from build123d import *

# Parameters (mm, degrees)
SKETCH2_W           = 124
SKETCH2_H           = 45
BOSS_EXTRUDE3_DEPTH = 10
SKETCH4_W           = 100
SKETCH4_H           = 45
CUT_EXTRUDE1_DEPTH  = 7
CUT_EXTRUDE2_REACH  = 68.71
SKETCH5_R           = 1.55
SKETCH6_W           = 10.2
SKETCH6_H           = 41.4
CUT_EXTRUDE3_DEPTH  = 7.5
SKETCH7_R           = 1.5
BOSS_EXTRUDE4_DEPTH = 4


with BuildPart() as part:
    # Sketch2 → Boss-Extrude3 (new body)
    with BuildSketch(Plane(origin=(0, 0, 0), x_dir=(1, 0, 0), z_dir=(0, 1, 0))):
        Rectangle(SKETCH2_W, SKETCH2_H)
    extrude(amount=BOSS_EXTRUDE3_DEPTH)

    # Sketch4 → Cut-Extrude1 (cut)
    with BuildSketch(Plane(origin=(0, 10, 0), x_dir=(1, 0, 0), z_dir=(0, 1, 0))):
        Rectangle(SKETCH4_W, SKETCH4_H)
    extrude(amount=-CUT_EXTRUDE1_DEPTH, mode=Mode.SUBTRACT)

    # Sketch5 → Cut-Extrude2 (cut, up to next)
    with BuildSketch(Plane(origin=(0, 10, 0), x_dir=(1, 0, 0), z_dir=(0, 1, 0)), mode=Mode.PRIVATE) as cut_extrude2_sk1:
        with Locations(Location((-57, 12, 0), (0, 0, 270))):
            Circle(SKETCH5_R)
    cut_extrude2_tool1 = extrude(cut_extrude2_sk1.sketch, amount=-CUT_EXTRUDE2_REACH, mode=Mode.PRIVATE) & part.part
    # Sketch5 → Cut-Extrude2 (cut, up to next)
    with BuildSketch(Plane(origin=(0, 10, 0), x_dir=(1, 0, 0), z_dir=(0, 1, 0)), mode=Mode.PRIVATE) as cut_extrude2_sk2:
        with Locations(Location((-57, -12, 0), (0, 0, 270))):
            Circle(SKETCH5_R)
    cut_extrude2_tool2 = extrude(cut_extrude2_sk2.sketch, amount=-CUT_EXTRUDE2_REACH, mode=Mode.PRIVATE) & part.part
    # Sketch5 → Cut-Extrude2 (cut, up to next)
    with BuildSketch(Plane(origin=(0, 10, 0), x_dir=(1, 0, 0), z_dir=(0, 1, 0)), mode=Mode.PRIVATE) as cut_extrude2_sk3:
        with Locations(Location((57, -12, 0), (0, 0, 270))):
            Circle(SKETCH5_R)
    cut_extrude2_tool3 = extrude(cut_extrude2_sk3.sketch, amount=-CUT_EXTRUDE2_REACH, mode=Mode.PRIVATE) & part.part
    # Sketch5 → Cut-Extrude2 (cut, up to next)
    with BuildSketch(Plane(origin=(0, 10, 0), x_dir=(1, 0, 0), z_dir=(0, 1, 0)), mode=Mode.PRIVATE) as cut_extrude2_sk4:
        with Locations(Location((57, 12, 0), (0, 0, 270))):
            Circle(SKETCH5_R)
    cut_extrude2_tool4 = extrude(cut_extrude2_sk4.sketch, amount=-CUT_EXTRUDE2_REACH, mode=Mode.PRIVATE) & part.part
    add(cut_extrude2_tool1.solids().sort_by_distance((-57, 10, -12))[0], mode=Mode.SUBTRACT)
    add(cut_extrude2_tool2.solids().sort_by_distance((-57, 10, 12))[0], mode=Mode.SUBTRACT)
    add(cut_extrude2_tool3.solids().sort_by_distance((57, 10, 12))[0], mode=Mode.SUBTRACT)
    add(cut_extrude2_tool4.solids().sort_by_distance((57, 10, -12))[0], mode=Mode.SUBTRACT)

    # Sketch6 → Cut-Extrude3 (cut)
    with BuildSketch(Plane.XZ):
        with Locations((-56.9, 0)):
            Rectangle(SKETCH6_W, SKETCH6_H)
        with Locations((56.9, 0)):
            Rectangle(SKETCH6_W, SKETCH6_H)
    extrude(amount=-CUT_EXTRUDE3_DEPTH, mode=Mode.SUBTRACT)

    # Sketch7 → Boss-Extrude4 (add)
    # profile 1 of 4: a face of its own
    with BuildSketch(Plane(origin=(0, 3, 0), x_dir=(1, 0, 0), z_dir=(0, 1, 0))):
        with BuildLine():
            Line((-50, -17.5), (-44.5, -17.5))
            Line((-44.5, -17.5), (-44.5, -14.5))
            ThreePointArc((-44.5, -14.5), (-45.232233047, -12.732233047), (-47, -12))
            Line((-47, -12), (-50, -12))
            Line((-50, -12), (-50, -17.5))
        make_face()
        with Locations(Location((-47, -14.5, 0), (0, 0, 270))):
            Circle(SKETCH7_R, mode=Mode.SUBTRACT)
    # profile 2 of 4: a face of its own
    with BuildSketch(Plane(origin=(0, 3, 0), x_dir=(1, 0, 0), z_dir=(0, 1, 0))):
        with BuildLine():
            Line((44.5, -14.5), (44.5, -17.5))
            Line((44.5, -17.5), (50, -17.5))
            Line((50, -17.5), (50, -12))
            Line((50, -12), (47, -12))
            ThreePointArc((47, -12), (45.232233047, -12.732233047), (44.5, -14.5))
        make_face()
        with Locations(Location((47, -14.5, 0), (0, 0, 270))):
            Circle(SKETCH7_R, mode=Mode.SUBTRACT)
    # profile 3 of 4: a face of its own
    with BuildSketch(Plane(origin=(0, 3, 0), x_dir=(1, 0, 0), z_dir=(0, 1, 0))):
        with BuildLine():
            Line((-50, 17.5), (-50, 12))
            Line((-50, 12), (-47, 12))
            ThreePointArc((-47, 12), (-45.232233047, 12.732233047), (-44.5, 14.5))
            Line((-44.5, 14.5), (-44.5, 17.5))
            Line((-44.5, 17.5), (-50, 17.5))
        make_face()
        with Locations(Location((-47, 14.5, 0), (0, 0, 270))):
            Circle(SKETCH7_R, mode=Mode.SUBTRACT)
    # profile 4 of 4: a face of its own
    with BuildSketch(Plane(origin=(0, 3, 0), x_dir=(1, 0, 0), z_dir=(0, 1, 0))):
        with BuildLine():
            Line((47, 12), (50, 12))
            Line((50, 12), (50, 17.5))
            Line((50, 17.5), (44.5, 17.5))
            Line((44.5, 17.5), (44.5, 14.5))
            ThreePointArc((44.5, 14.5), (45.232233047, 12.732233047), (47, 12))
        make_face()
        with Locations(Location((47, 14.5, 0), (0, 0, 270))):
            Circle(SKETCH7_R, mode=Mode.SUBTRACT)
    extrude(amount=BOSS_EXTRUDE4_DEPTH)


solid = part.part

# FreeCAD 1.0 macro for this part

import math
import FreeCAD as App
import Part
import Sketcher
Q = App.Units.Quantity


def add_polygon(sketch, points):
    """Adds a closed chain of lines whose ends are joined by coincident constraints."""
    first, n = sketch.GeometryCount, len(points)
    for a, b in zip(points, points[1:] + points[:1]):
        sketch.addGeometry(Part.LineSegment(App.Vector(*a, 0), App.Vector(*b, 0)), False)
    for i in range(n):
        sketch.addConstraint(Sketcher.Constraint("Coincident", first + i, 2, first + (i + 1) % n, 1))

doc = App.newDocument("Part")
params = doc.addObject("Spreadsheet::Sheet", "Params")
for row, (alias, value) in enumerate([
    ("sketch1_width", "124 mm"),
    ("sketch1_height", "45 mm"),
    ("pad1_length", "10 mm"),
    ("sketch2_width", "100 mm"),
    ("sketch2_height", "45 mm"),
    ("pocket1_length", "7 mm"),
    ("sketch3_diameter", "3.1 mm"),
    ("sketch4_diameter", "3.1 mm"),
    ("sketch5_diameter", "3.1 mm"),
    ("sketch6_diameter", "3.1 mm"),
    ("sketch7_width", "10.2 mm"),
    ("sketch7_height", "41.4 mm"),
    ("pocket6_length", "7.5 mm"),
    ("sketch8_diameter", "3 mm"),
    ("sketch8_radius", "2.5 mm"),
    ("sketch8_width", "3 mm"),
    ("pad2_length", "4 mm"),
], start=1):
    params.set(f"A{row}", alias)
    params.set(f"B{row}", "=" + value)
    params.setAlias(f"B{row}", alias)

body = doc.addObject("PartDesign::Body", "Body")

# Sketch on XZ plane
sketch1 = doc.addObject("Sketcher::SketchObject", "Sketch")
body.addObject(sketch1)
sketch1.AttachmentSupport = (doc.XZ_Plane, [""])
sketch1.MapMode = "FlatFace"
add_polygon(sketch1, [(-62, -22.5), (-62, 22.5), (62, 22.5), (62, -22.5)])  # lines 0-3
sketch1.addConstraint(Sketcher.Constraint("Vertical", 0))
sketch1.addConstraint(Sketcher.Constraint("Horizontal", 1))
sketch1.addConstraint(Sketcher.Constraint("Vertical", 2))
sketch1.addConstraint(Sketcher.Constraint("Horizontal", 3))
sketch1.addConstraint(Sketcher.Constraint("Symmetric", 0, 2, 2, 2, -1, 1))
sketch1.addConstraint(Sketcher.Constraint("DistanceX", 1, 1, 1, 2, Q("124 mm")))
sketch1.addConstraint(Sketcher.Constraint("DistanceY", 0, 1, 0, 2, Q("45 mm")))
sketch1.setExpression("Constraints[9]", "Params.sketch1_width")
sketch1.setExpression("Constraints[10]", "Params.sketch1_height")
pad1 = doc.addObject("PartDesign::Pad", "Pad")
body.addObject(pad1)
pad1.Profile = sketch1
pad1.setExpression("Length", "Params.pad1_length")
pad1.Reversed = True

# Sketch on XZ plane
sketch2 = doc.addObject("Sketcher::SketchObject", "Sketch001")
body.addObject(sketch2)
sketch2.AttachmentSupport = (doc.XZ_Plane, [""])
sketch2.MapMode = "FlatFace"
sketch2.AttachmentOffset = App.Placement(App.Vector(0, 0, -10), App.Rotation())
add_polygon(sketch2, [(-50, -22.5), (-50, 22.5), (50, 22.5), (50, -22.5)])  # lines 0-3
sketch2.addConstraint(Sketcher.Constraint("Vertical", 0))
sketch2.addConstraint(Sketcher.Constraint("Horizontal", 1))
sketch2.addConstraint(Sketcher.Constraint("Vertical", 2))
sketch2.addConstraint(Sketcher.Constraint("Horizontal", 3))
sketch2.addConstraint(Sketcher.Constraint("Symmetric", 0, 2, 2, 2, -1, 1))
sketch2.addConstraint(Sketcher.Constraint("DistanceX", 1, 1, 1, 2, Q("100 mm")))
sketch2.addConstraint(Sketcher.Constraint("DistanceY", 0, 1, 0, 2, Q("45 mm")))
sketch2.setExpression("Constraints[9]", "Params.sketch2_width")
sketch2.setExpression("Constraints[10]", "Params.sketch2_height")
pocket1 = doc.addObject("PartDesign::Pocket", "Pocket")
body.addObject(pocket1)
pocket1.Profile = sketch2
pocket1.setExpression("Length", "Params.pocket1_length")
pocket1.Reversed = True

# Sketch on XZ plane
sketch3 = doc.addObject("Sketcher::SketchObject", "Sketch002")
body.addObject(sketch3)
sketch3.AttachmentSupport = (doc.XZ_Plane, [""])
sketch3.MapMode = "FlatFace"
sketch3.AttachmentOffset = App.Placement(App.Vector(0, 0, -10), App.Rotation())
sketch3.addGeometry(Part.Circle(App.Vector(-57, -12, 0), App.Vector(0, 0, 1), 1.55), False)
sketch3.addConstraint(Sketcher.Constraint("Diameter", 0, Q("3.1 mm")))
sketch3.addConstraint(Sketcher.Constraint("DistanceX", 0, 3, -1, 1, Q("57 mm")))
sketch3.addConstraint(Sketcher.Constraint("DistanceY", 0, 3, -1, 1, Q("12 mm")))
sketch3.setExpression("Constraints[0]", "Params.sketch3_diameter")
pocket2 = doc.addObject("PartDesign::Pocket", "Pocket001")
body.addObject(pocket2)
pocket2.Profile = sketch3
pocket2.Type = "UpToFirst"
pocket2.Reversed = True

# Sketch on XZ plane
sketch4 = doc.addObject("Sketcher::SketchObject", "Sketch003")
body.addObject(sketch4)
sketch4.AttachmentSupport = (doc.XZ_Plane, [""])
sketch4.MapMode = "FlatFace"
sketch4.AttachmentOffset = App.Placement(App.Vector(0, 0, -10), App.Rotation())
sketch4.addGeometry(Part.Circle(App.Vector(-57, 12, 0), App.Vector(0, 0, 1), 1.55), False)
sketch4.addConstraint(Sketcher.Constraint("Diameter", 0, Q("3.1 mm")))
sketch4.addConstraint(Sketcher.Constraint("DistanceX", 0, 3, -1, 1, Q("57 mm")))
sketch4.addConstraint(Sketcher.Constraint("DistanceY", -1, 1, 0, 3, Q("12 mm")))
sketch4.setExpression("Constraints[0]", "Params.sketch4_diameter")
pocket3 = doc.addObject("PartDesign::Pocket", "Pocket002")
body.addObject(pocket3)
pocket3.Profile = sketch4
pocket3.Type = "UpToFirst"
pocket3.Reversed = True

# Sketch on XZ plane
sketch5 = doc.addObject("Sketcher::SketchObject", "Sketch004")
body.addObject(sketch5)
sketch5.AttachmentSupport = (doc.XZ_Plane, [""])
sketch5.MapMode = "FlatFace"
sketch5.AttachmentOffset = App.Placement(App.Vector(0, 0, -10), App.Rotation())
sketch5.addGeometry(Part.Circle(App.Vector(57, 12, 0), App.Vector(0, 0, 1), 1.55), False)
sketch5.addConstraint(Sketcher.Constraint("Diameter", 0, Q("3.1 mm")))
sketch5.addConstraint(Sketcher.Constraint("DistanceX", -1, 1, 0, 3, Q("57 mm")))
sketch5.addConstraint(Sketcher.Constraint("DistanceY", -1, 1, 0, 3, Q("12 mm")))
sketch5.setExpression("Constraints[0]", "Params.sketch5_diameter")
pocket4 = doc.addObject("PartDesign::Pocket", "Pocket003")
body.addObject(pocket4)
pocket4.Profile = sketch5
pocket4.Type = "UpToFirst"
pocket4.Reversed = True

# Sketch on XZ plane
sketch6 = doc.addObject("Sketcher::SketchObject", "Sketch005")
body.addObject(sketch6)
sketch6.AttachmentSupport = (doc.XZ_Plane, [""])
sketch6.MapMode = "FlatFace"
sketch6.AttachmentOffset = App.Placement(App.Vector(0, 0, -10), App.Rotation())
sketch6.addGeometry(Part.Circle(App.Vector(57, -12, 0), App.Vector(0, 0, 1), 1.55), False)
sketch6.addConstraint(Sketcher.Constraint("Diameter", 0, Q("3.1 mm")))
sketch6.addConstraint(Sketcher.Constraint("DistanceX", -1, 1, 0, 3, Q("57 mm")))
sketch6.addConstraint(Sketcher.Constraint("DistanceY", 0, 3, -1, 1, Q("12 mm")))
sketch6.setExpression("Constraints[0]", "Params.sketch6_diameter")
pocket5 = doc.addObject("PartDesign::Pocket", "Pocket004")
body.addObject(pocket5)
pocket5.Profile = sketch6
pocket5.Type = "UpToFirst"
pocket5.Reversed = True

# Sketch on XZ plane
sketch7 = doc.addObject("Sketcher::SketchObject", "Sketch006")
body.addObject(sketch7)
sketch7.AttachmentSupport = (doc.XZ_Plane, [""])
sketch7.MapMode = "FlatFace"
add_polygon(sketch7, [(-62, 20.7), (-62, -20.7), (-51.8, -20.7), (-51.8, 20.7)])  # lines 0-3
add_polygon(sketch7, [(51.8, 20.7), (51.8, -20.7), (62, -20.7), (62, 20.7)])  # lines 4-7
sketch7.addConstraint(Sketcher.Constraint("Vertical", 0))
sketch7.addConstraint(Sketcher.Constraint("Horizontal", 1))
sketch7.addConstraint(Sketcher.Constraint("Vertical", 2))
sketch7.addConstraint(Sketcher.Constraint("Horizontal", 3))
sketch7.addConstraint(Sketcher.Constraint("Vertical", 4))
sketch7.addConstraint(Sketcher.Constraint("Horizontal", 5))
sketch7.addConstraint(Sketcher.Constraint("Vertical", 6))
sketch7.addConstraint(Sketcher.Constraint("Horizontal", 7))
sketch7.addConstraint(Sketcher.Constraint("Symmetric", 2, 2, 4, 2, -1, 1))
sketch7.addConstraint(Sketcher.Constraint("Symmetric", 0, 2, 6, 2, -1, 1))
sketch7.addConstraint(Sketcher.Constraint("Horizontal", 1, 2, 4, 2))
sketch7.addConstraint(Sketcher.Constraint("DistanceX", 1, 1, 1, 2, Q("10.2 mm")))
sketch7.addConstraint(Sketcher.Constraint("DistanceY", 0, 2, 0, 1, Q("41.4 mm")))
sketch7.addConstraint(Sketcher.Constraint("DistanceX", 0, 2, -1, 1, Q("62 mm")))
sketch7.setExpression("Constraints[19]", "Params.sketch7_width")
sketch7.setExpression("Constraints[20]", "Params.sketch7_height")
pocket6 = doc.addObject("PartDesign::Pocket", "Pocket005")
body.addObject(pocket6)
pocket6.Profile = sketch7
pocket6.setExpression("Length", "Params.pocket6_length")

# Sketch on XZ plane
sketch8 = doc.addObject("Sketcher::SketchObject", "Sketch007")
body.addObject(sketch8)
sketch8.AttachmentSupport = (doc.XZ_Plane, [""])
sketch8.MapMode = "FlatFace"
sketch8.AttachmentOffset = App.Placement(App.Vector(0, 0, -3), App.Rotation())
sketch8.addGeometry(Part.LineSegment(App.Vector(-50, 17.5, 0), App.Vector(-44.5, 17.5, 0)), False)
sketch8.addGeometry(Part.LineSegment(App.Vector(-44.5, 17.5, 0), App.Vector(-44.5, 14.5, 0)), False)
sketch8.addGeometry(Part.ArcOfCircle(Part.Circle(App.Vector(-47, 14.5, 0), App.Vector(0, 0, 1), 2.5), math.radians(-90), math.radians(0)), False)
sketch8.addGeometry(Part.LineSegment(App.Vector(-47, 12, 0), App.Vector(-50, 12, 0)), False)
sketch8.addGeometry(Part.LineSegment(App.Vector(-50, 12, 0), App.Vector(-50, 17.5, 0)), False)
sketch8.addGeometry(Part.Circle(App.Vector(-47, 14.5, 0), App.Vector(0, 0, 1), 1.5), False)
sketch8.addGeometry(Part.LineSegment(App.Vector(44.5, 14.5, 0), App.Vector(44.5, 17.5, 0)), False)
sketch8.addGeometry(Part.LineSegment(App.Vector(44.5, 17.5, 0), App.Vector(50, 17.5, 0)), False)
sketch8.addGeometry(Part.LineSegment(App.Vector(50, 17.5, 0), App.Vector(50, 12, 0)), False)
sketch8.addGeometry(Part.LineSegment(App.Vector(50, 12, 0), App.Vector(47, 12, 0)), False)
sketch8.addGeometry(Part.ArcOfCircle(Part.Circle(App.Vector(47, 14.5, 0), App.Vector(0, 0, 1), 2.5), math.radians(180), math.radians(270)), False)
sketch8.addGeometry(Part.Circle(App.Vector(47, 14.5, 0), App.Vector(0, 0, 1), 1.5), False)
sketch8.addGeometry(Part.LineSegment(App.Vector(-50, -17.5, 0), App.Vector(-50, -12, 0)), False)
sketch8.addGeometry(Part.LineSegment(App.Vector(-50, -12, 0), App.Vector(-47, -12, 0)), False)
sketch8.addGeometry(Part.ArcOfCircle(Part.Circle(App.Vector(-47, -14.5, 0), App.Vector(0, 0, 1), 2.5), math.radians(0), math.radians(90)), False)
sketch8.addGeometry(Part.LineSegment(App.Vector(-44.5, -14.5, 0), App.Vector(-44.5, -17.5, 0)), False)
sketch8.addGeometry(Part.LineSegment(App.Vector(-44.5, -17.5, 0), App.Vector(-50, -17.5, 0)), False)
sketch8.addGeometry(Part.Circle(App.Vector(-47, -14.5, 0), App.Vector(0, 0, 1), 1.5), False)
sketch8.addGeometry(Part.LineSegment(App.Vector(47, -12, 0), App.Vector(50, -12, 0)), False)
sketch8.addGeometry(Part.LineSegment(App.Vector(50, -12, 0), App.Vector(50, -17.5, 0)), False)
sketch8.addGeometry(Part.LineSegment(App.Vector(50, -17.5, 0), App.Vector(44.5, -17.5, 0)), False)
sketch8.addGeometry(Part.LineSegment(App.Vector(44.5, -17.5, 0), App.Vector(44.5, -14.5, 0)), False)
sketch8.addGeometry(Part.ArcOfCircle(Part.Circle(App.Vector(47, -14.5, 0), App.Vector(0, 0, 1), 2.5), math.radians(90), math.radians(180)), False)
sketch8.addGeometry(Part.Circle(App.Vector(47, -14.5, 0), App.Vector(0, 0, 1), 1.5), False)
sketch8.addConstraint(Sketcher.Constraint("Coincident", 0, 2, 1, 1))
sketch8.addConstraint(Sketcher.Constraint("Tangent", 1, 2, 2, 2))
sketch8.addConstraint(Sketcher.Constraint("Tangent", 2, 1, 3, 1))
sketch8.addConstraint(Sketcher.Constraint("Coincident", 3, 2, 4, 1))
sketch8.addConstraint(Sketcher.Constraint("Coincident", 4, 2, 0, 1))
sketch8.addConstraint(Sketcher.Constraint("Coincident", 6, 2, 7, 1))
sketch8.addConstraint(Sketcher.Constraint("Coincident", 7, 2, 8, 1))
sketch8.addConstraint(Sketcher.Constraint("Coincident", 8, 2, 9, 1))
sketch8.addConstraint(Sketcher.Constraint("Tangent", 9, 2, 10, 2))
sketch8.addConstraint(Sketcher.Constraint("Tangent", 10, 1, 6, 1))
sketch8.addConstraint(Sketcher.Constraint("Coincident", 12, 2, 13, 1))
sketch8.addConstraint(Sketcher.Constraint("Tangent", 13, 2, 14, 2))
sketch8.addConstraint(Sketcher.Constraint("Tangent", 14, 1, 15, 1))
sketch8.addConstraint(Sketcher.Constraint("Coincident", 15, 2, 16, 1))
sketch8.addConstraint(Sketcher.Constraint("Coincident", 16, 2, 12, 1))
sketch8.addConstraint(Sketcher.Constraint("Coincident", 18, 2, 19, 1))
sketch8.addConstraint(Sketcher.Constraint("Coincident", 19, 2, 20, 1))
sketch8.addConstraint(Sketcher.Constraint("Coincident", 20, 2, 21, 1))
sketch8.addConstraint(Sketcher.Constraint("Tangent", 21, 2, 22, 2))
sketch8.addConstraint(Sketcher.Constraint("Tangent", 22, 1, 18, 1))
sketch8.addConstraint(Sketcher.Constraint("Horizontal", 0))
sketch8.addConstraint(Sketcher.Constraint("Vertical", 1))
sketch8.addConstraint(Sketcher.Constraint("Horizontal", 3))
sketch8.addConstraint(Sketcher.Constraint("Vertical", 4))
sketch8.addConstraint(Sketcher.Constraint("Vertical", 6))
sketch8.addConstraint(Sketcher.Constraint("Horizontal", 7))
sketch8.addConstraint(Sketcher.Constraint("Vertical", 8))
sketch8.addConstraint(Sketcher.Constraint("Horizontal", 9))
sketch8.addConstraint(Sketcher.Constraint("Vertical", 12))
sketch8.addConstraint(Sketcher.Constraint("Horizontal", 13))
sketch8.addConstraint(Sketcher.Constraint("Vertical", 15))
sketch8.addConstraint(Sketcher.Constraint("Horizontal", 16))
sketch8.addConstraint(Sketcher.Constraint("Horizontal", 18))
sketch8.addConstraint(Sketcher.Constraint("Vertical", 19))
sketch8.addConstraint(Sketcher.Constraint("Horizontal", 20))
sketch8.addConstraint(Sketcher.Constraint("Vertical", 21))
sketch8.addConstraint(Sketcher.Constraint("Coincident", 5, 3, 2, 3))
sketch8.addConstraint(Sketcher.Constraint("Coincident", 11, 3, 10, 3))
sketch8.addConstraint(Sketcher.Constraint("Coincident", 17, 3, 14, 3))
sketch8.addConstraint(Sketcher.Constraint("Coincident", 23, 3, 22, 3))
sketch8.addConstraint(Sketcher.Constraint("Equal", 2, 10))
sketch8.addConstraint(Sketcher.Constraint("Equal", 5, 11))
sketch8.addConstraint(Sketcher.Constraint("Equal", 10, 14))
sketch8.addConstraint(Sketcher.Constraint("Equal", 11, 17))
sketch8.addConstraint(Sketcher.Constraint("Equal", 14, 22))
sketch8.addConstraint(Sketcher.Constraint("Equal", 17, 23))
sketch8.addConstraint(Sketcher.Constraint("Symmetric", 10, 3, 14, 3, -1, 1))
sketch8.addConstraint(Sketcher.Constraint("Symmetric", 2, 3, 22, 3, -1, 1))
sketch8.addConstraint(Sketcher.Constraint("Symmetric", 7, 2, 16, 2, -1, 1))
sketch8.addConstraint(Sketcher.Constraint("Symmetric", 4, 2, 19, 2, -1, 1))
sketch8.addConstraint(Sketcher.Constraint("Symmetric", 2, 3, 10, 3, -2))
sketch8.addConstraint(Sketcher.Constraint("Symmetric", 4, 2, 7, 2, -2))
sketch8.addConstraint(Sketcher.Constraint("Equal", 18, 1))
sketch8.addConstraint(Sketcher.Constraint("Diameter", 5, Q("3 mm")))
sketch8.addConstraint(Sketcher.Constraint("Radius", 2, Q("2.5 mm")))
sketch8.addConstraint(Sketcher.Constraint("DistanceX", 3, 2, 3, 1, Q("3 mm")))
sketch8.addConstraint(Sketcher.Constraint("DistanceX", 2, 3, -1, 1, Q("47 mm")))
sketch8.addConstraint(Sketcher.Constraint("DistanceY", -1, 1, 2, 1, Q("12 mm")))
sketch8.setExpression("Constraints[53]", "Params.sketch8_diameter")
sketch8.setExpression("Constraints[54]", "Params.sketch8_radius")
sketch8.setExpression("Constraints[55]", "Params.sketch8_width")
pad2 = doc.addObject("PartDesign::Pad", "Pad001")
body.addObject(pad2)
pad2.Profile = sketch8
pad2.setExpression("Length", "Params.pad2_length")
pad2.Reversed = True

doc.recompute()
